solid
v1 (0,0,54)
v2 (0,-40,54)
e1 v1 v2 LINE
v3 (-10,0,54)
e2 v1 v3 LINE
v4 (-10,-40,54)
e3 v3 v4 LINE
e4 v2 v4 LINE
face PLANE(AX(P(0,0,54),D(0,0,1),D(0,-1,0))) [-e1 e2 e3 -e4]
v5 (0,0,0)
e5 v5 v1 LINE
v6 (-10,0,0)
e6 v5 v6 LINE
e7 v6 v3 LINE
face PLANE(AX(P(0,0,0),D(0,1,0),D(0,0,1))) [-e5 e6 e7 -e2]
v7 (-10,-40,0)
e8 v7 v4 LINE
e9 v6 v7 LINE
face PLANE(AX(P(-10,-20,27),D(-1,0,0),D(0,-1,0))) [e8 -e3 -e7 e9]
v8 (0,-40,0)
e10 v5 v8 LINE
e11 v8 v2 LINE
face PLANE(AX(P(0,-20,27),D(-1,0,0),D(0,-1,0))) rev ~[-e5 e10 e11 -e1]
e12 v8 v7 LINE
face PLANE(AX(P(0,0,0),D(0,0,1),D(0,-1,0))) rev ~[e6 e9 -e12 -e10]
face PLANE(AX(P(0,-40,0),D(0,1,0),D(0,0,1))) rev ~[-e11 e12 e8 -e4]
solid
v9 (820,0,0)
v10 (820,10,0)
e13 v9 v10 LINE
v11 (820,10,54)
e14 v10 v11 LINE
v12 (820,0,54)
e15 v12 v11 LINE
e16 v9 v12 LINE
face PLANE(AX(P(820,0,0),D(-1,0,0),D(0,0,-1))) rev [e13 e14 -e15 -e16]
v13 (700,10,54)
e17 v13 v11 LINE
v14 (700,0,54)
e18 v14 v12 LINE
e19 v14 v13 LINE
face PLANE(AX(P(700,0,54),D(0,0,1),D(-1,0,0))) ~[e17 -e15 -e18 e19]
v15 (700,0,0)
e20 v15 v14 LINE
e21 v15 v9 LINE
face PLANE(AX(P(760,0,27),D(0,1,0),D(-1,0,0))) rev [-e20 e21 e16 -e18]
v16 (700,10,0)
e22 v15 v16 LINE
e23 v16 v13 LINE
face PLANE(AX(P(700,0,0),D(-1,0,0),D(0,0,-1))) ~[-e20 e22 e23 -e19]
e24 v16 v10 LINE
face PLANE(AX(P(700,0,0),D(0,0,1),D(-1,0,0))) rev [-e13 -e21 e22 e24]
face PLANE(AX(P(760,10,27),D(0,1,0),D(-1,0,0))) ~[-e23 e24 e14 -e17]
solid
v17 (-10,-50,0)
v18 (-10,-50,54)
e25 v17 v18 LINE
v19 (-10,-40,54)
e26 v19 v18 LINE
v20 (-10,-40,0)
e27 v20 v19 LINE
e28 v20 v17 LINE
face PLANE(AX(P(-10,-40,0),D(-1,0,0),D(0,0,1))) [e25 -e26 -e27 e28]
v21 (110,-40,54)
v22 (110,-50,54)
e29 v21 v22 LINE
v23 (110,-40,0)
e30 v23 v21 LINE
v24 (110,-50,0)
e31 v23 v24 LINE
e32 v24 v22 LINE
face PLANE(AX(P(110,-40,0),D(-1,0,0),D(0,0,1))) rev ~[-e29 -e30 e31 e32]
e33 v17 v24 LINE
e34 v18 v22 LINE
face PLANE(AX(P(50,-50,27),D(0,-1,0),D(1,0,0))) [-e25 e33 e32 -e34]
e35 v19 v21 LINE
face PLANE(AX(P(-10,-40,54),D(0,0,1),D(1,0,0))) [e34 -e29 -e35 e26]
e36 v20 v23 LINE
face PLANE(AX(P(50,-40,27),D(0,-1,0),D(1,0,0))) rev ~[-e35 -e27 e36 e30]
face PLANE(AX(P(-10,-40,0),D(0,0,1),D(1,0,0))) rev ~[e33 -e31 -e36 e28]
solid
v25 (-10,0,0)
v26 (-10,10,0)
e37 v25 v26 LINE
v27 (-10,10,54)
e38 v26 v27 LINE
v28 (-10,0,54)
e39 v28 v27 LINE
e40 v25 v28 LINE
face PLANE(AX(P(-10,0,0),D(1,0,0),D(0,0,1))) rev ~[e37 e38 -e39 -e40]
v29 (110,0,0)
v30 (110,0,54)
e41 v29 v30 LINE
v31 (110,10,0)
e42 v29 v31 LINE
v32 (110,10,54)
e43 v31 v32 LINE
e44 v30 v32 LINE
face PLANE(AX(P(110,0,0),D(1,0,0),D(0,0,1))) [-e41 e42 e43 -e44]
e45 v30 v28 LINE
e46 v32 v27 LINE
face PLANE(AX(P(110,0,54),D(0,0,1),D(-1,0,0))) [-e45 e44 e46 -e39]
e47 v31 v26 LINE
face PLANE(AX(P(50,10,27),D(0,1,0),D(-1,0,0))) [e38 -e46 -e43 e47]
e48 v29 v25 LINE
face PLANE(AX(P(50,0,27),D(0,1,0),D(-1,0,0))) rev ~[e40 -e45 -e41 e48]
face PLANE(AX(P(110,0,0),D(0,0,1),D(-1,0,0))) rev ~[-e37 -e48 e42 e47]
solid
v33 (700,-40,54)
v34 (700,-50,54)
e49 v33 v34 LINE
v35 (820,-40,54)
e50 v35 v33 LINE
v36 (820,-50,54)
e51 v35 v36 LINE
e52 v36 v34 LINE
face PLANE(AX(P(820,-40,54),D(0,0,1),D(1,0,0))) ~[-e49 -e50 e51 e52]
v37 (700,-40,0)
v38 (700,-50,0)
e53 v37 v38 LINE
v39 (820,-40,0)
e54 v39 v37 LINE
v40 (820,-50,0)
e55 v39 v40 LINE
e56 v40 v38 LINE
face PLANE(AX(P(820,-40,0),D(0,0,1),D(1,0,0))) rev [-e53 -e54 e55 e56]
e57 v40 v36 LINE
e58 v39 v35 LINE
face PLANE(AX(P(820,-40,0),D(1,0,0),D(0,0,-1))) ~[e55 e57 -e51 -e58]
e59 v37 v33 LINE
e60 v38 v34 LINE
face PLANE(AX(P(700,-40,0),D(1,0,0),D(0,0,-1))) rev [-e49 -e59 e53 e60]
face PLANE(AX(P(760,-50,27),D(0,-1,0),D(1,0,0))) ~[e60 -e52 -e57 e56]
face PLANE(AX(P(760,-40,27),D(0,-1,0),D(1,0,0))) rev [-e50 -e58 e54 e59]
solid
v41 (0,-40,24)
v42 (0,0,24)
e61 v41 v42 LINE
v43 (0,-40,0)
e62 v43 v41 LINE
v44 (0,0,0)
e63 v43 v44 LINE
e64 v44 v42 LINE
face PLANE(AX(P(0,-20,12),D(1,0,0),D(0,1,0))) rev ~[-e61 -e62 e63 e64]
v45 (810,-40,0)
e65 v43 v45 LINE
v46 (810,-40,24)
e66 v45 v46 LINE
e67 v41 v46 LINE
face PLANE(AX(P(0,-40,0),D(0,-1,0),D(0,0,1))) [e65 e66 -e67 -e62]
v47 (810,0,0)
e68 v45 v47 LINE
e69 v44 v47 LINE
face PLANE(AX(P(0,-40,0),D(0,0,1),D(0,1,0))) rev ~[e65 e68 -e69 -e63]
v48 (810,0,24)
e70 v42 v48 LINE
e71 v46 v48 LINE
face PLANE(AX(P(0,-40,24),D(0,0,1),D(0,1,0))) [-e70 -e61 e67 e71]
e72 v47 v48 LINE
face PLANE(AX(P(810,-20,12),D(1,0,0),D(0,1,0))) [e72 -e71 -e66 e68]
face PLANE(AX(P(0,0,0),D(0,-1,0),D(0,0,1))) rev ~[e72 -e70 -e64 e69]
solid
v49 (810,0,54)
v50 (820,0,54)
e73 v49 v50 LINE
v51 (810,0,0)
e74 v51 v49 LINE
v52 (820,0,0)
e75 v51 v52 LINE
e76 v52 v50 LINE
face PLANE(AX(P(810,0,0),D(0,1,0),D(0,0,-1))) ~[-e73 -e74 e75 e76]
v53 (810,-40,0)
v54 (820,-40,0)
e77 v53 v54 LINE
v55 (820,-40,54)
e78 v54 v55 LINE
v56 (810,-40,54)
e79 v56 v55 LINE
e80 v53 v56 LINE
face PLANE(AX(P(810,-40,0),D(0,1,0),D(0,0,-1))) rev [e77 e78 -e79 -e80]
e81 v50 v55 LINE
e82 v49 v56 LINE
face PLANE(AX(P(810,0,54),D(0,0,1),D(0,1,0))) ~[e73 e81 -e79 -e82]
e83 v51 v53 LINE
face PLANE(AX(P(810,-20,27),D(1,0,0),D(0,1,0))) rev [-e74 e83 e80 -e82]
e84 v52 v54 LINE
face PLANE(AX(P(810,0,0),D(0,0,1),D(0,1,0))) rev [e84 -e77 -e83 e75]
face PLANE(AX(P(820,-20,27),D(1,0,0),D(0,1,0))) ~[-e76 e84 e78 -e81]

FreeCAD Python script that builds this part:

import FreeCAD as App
import Part
import Sketcher
from FreeCAD import Vector
Q = App.Units.Quantity


def add_polygon(sketch, points):
    """Adds a closed chain of lines whose ends are joined by coincident constraints."""
    first, n = sketch.GeometryCount, len(points)
    for a, b in zip(points, points[1:] + points[:1]):
        sketch.addGeometry(Part.LineSegment(App.Vector(*a, 0), App.Vector(*b, 0)), False)
    for i in range(n):
        sketch.addConstraint(Sketcher.Constraint("Coincident", first + i, 2, first + (i + 1) % n, 1))

doc = App.newDocument("Part")
body = doc.addObject("PartDesign::Body", "Body")

# Sketch on YZ plane
sketch1 = body.newObject("Sketcher::SketchObject", "Sketch")
sketch1.AttachmentSupport = (doc.getObject("YZ_Plane"), [""])
sketch1.MapMode = "FlatFace"
add_polygon(sketch1, [(-40, 24), (-40, 0), (0, 0), (0, 24)])  # lines 0-3
sketch1.addConstraint(Sketcher.Constraint("Vertical", 0))
sketch1.addConstraint(Sketcher.Constraint("Horizontal", 1))
sketch1.addConstraint(Sketcher.Constraint("Vertical", 2))
sketch1.addConstraint(Sketcher.Constraint("Horizontal", 3))
sketch1.addConstraint(Sketcher.Constraint("Coincident", 1, 2, -1, 1))
sketch1.addConstraint(Sketcher.Constraint("DistanceX", 1, 1, 1, 2, Q("40 mm")))
sketch1.addConstraint(Sketcher.Constraint("DistanceY", 0, 2, 0, 1, Q("24 mm")))
pad1 = body.newObject("PartDesign::Pad", "Pad")
pad1.Profile = sketch1
pad1.Length = 810
body2 = doc.addObject("PartDesign::Body", "Body001")

# Sketch on YZ plane
sketch2 = body2.newObject("Sketcher::SketchObject", "Sketch001")
sketch2.AttachmentSupport = (doc.getObject("YZ_Plane001"), [""])
sketch2.MapMode = "FlatFace"
add_polygon(sketch2, [(0, 54), (0, 0), (-40, 0), (-40, 54)])  # lines 0-3
sketch2.addConstraint(Sketcher.Constraint("Vertical", 0))
sketch2.addConstraint(Sketcher.Constraint("Horizontal", 1))
sketch2.addConstraint(Sketcher.Constraint("Vertical", 2))
sketch2.addConstraint(Sketcher.Constraint("Horizontal", 3))
sketch2.addConstraint(Sketcher.Constraint("Coincident", 0, 2, -1, 1))
sketch2.addConstraint(Sketcher.Constraint("DistanceX", 1, 2, 1, 1, Q("40 mm")))
sketch2.addConstraint(Sketcher.Constraint("DistanceY", 0, 2, 0, 1, Q("54 mm")))
pad2 = body2.newObject("PartDesign::Pad", "Pad001")
pad2.Profile = sketch2
pad2.Length = 10
pad2.Reversed = True
body3 = doc.addObject("PartDesign::Body", "Body002")

# Sketch on XZ plane
sketch3 = body3.newObject("Sketcher::SketchObject", "Sketch002")
sketch3.AttachmentSupport = (doc.getObject("XZ_Plane002"), [""])
sketch3.MapMode = "FlatFace"
sketch3.AttachmentOffset = App.Placement(Vector(0, 0, 40), App.Rotation())
add_polygon(sketch3, [(-10, 54), (-10, 0), (110, 0), (110, 54)])  # lines 0-3
sketch3.addConstraint(Sketcher.Constraint("Vertical", 0))
sketch3.addConstraint(Sketcher.Constraint("Horizontal", 1))
sketch3.addConstraint(Sketcher.Constraint("Vertical", 2))
sketch3.addConstraint(Sketcher.Constraint("Horizontal", 3))
sketch3.addConstraint(Sketcher.Constraint("PointOnObject", 0, 2, -1))
sketch3.addConstraint(Sketcher.Constraint("DistanceX", 1, 1, 1, 2, Q("120 mm")))
sketch3.addConstraint(Sketcher.Constraint("DistanceY", 0, 2, 0, 1, Q("54 mm")))
sketch3.addConstraint(Sketcher.Constraint("DistanceX", 0, 2, -1, 1, Q("10 mm")))
pad3 = body3.newObject("PartDesign::Pad", "Pad002")
pad3.Profile = sketch3
pad3.Length = 10
body4 = doc.addObject("PartDesign::Body", "Body003")

# Sketch on XZ plane
sketch4 = body4.newObject("Sketcher::SketchObject", "Sketch003")
sketch4.AttachmentSupport = (doc.getObject("XZ_Plane003"), [""])
sketch4.MapMode = "FlatFace"
add_polygon(sketch4, [(110, 54), (110, 0), (-10, 0), (-10, 54)])  # lines 0-3
sketch4.addConstraint(Sketcher.Constraint("Vertical", 0))
sketch4.addConstraint(Sketcher.Constraint("Horizontal", 1))
sketch4.addConstraint(Sketcher.Constraint("Vertical", 2))
sketch4.addConstraint(Sketcher.Constraint("Horizontal", 3))
sketch4.addConstraint(Sketcher.Constraint("PointOnObject", 0, 2, -1))
sketch4.addConstraint(Sketcher.Constraint("DistanceX", 1, 2, 1, 1, Q("120 mm")))
sketch4.addConstraint(Sketcher.Constraint("DistanceY", 0, 2, 0, 1, Q("54 mm")))
sketch4.addConstraint(Sketcher.Constraint("DistanceX", -1, 1, 0, 2, Q("110 mm")))
pad4 = body4.newObject("PartDesign::Pad", "Pad003")
pad4.Profile = sketch4
pad4.Length = 10
pad4.Reversed = True
body5 = doc.addObject("PartDesign::Body", "Body004")
doc.recompute()

mirroring = doc.addObject("Part::Mirroring", "Mirroring")
mirroring.Source = body3
mirroring.Base = Vector(405, 0, 0)
mirroring.Normal = Vector(1, 0, 0)
body5.BaseFeature = mirroring
doc.recompute()
body6 = doc.addObject("PartDesign::Body", "Body005")
doc.recompute()

mirroring2 = doc.addObject("Part::Mirroring", "Mirroring001")
mirroring2.Source = body2
mirroring2.Base = Vector(405, 0, 0)
mirroring2.Normal = Vector(1, 0, 0)
body6.BaseFeature = mirroring2
doc.recompute()
body7 = doc.addObject("PartDesign::Body", "Body006")
doc.recompute()

mirroring3 = doc.addObject("Part::Mirroring", "Mirroring002")
mirroring3.Source = body4
mirroring3.Base = Vector(405, 0, 0)
mirroring3.Normal = Vector(1, 0, 0)
body7.BaseFeature = mirroring3
doc.recompute()
mirroring.Visibility = False
mirroring2.Visibility = False
mirroring3.Visibility = False

doc.recompute()
